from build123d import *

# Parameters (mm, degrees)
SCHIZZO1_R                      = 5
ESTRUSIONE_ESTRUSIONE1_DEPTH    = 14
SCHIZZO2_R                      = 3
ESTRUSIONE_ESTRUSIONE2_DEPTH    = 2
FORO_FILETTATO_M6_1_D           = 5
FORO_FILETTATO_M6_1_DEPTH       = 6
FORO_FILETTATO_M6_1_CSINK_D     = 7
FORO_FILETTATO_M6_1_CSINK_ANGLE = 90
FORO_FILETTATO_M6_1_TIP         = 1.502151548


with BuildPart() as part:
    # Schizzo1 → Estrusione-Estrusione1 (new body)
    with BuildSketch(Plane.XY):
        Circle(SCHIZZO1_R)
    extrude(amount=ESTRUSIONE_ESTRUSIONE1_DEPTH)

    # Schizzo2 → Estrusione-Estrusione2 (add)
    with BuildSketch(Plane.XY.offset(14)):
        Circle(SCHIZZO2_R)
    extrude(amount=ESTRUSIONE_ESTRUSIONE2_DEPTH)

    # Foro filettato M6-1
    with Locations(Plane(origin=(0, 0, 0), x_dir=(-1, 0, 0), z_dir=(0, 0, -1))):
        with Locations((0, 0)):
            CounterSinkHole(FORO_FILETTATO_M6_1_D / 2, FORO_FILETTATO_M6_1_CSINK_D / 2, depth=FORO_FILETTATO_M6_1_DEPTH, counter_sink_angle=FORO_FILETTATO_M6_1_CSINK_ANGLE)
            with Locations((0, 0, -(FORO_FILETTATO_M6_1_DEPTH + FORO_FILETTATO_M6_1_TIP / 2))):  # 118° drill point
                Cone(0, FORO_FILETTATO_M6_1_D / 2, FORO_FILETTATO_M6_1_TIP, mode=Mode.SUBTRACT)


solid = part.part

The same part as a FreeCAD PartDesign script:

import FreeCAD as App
import Part
import Sketcher

V = App.Vector
Q = App.Units.Quantity

doc = App.newDocument("Part")
params = doc.addObject("Spreadsheet::Sheet", "Params")
for row, (alias, value) in enumerate([
    ("sketch1_diameter", "10 mm"),
    ("pad1_length", "14 mm"),
    ("sketch2_diameter", "6 mm"),
    ("pad2_length", "2 mm"),
    ("sketch3_diameter", "5 mm"),
    ("hole_diameter", "5 mm"),
    ("hole_depth", "6 mm"),
    ("hole_csink_diameter", "7 mm"),
], start=1):
    params.set(f"A{row}", alias)
    params.set(f"B{row}", "=" + value)
    params.setAlias(f"B{row}", alias)

body = doc.addObject("PartDesign::Body", "Body")

sketch1 = doc.addObject("Sketcher::SketchObject", "Sketch")
body.addObject(sketch1)
sketch1.AttachmentSupport = (doc.XY_Plane, [""])
sketch1.MapMode = "FlatFace"
sketch1.addGeometry(Part.Circle(V(0, 0, 0), V(0, 0, 1), 5), False)
sketch1.addConstraint([
    Sketcher.Constraint("Coincident", 0, 3, -1, 1),
    Sketcher.Constraint("Diameter", 0, Q("10 mm")),
])
sketch1.setExpression("Constraints[1]", "Params.sketch1_diameter")
pad1 = doc.addObject("PartDesign::Pad", "Pad")
body.addObject(pad1)
pad1.Profile = sketch1
pad1.setExpression("Length", "Params.pad1_length")

sketch2 = doc.addObject("Sketcher::SketchObject", "Sketch001")
body.addObject(sketch2)
sketch2.AttachmentSupport = (doc.XY_Plane, [""])
sketch2.MapMode = "FlatFace"
sketch2.AttachmentOffset = App.Placement(V(0, 0, 14), App.Rotation())
sketch2.addGeometry(Part.Circle(V(0, 0, 0), V(0, 0, 1), 3), False)
sketch2.addConstraint([
    Sketcher.Constraint("Coincident", 0, 3, -1, 1),
    Sketcher.Constraint("Diameter", 0, Q("6 mm")),
])
sketch2.setExpression("Constraints[1]", "Params.sketch2_diameter")
pad2 = doc.addObject("PartDesign::Pad", "Pad001")
body.addObject(pad2)
pad2.Profile = sketch2
pad2.setExpression("Length", "Params.pad2_length")

sketch3 = doc.addObject("Sketcher::SketchObject", "Sketch002")
body.addObject(sketch3)
sketch3.AttachmentSupport = (doc.XY_Plane, [""])
sketch3.MapMode = "FlatFace"
sketch3.addGeometry(Part.Circle(V(0, 0, 0), V(0, 0, 1), 2.5), False)
sketch3.addConstraint([
    Sketcher.Constraint("Coincident", 0, 3, -1, 1),
    Sketcher.Constraint("Diameter", 0, Q("5 mm")),
])
sketch3.setExpression("Constraints[1]", "Params.sketch3_diameter")
doc.recompute()
hole = doc.addObject("PartDesign::Hole", "Hole")
body.addObject(hole)
hole.Profile = sketch3
hole.ThreadType = "None"
hole.setExpression("Diameter", "Params.hole_diameter")
hole.DepthType = "Dimension"
hole.setExpression("Depth", "Params.hole_depth")
hole.DrillPoint = "Angled"
hole.DrillPointAngle = 118
hole.HoleCutType = "Countersink"
hole.setExpression("HoleCutDiameter", "Params.hole_csink_diameter")
hole.HoleCutCountersinkAngle = 90
hole.Reversed = True

doc.recompute()
